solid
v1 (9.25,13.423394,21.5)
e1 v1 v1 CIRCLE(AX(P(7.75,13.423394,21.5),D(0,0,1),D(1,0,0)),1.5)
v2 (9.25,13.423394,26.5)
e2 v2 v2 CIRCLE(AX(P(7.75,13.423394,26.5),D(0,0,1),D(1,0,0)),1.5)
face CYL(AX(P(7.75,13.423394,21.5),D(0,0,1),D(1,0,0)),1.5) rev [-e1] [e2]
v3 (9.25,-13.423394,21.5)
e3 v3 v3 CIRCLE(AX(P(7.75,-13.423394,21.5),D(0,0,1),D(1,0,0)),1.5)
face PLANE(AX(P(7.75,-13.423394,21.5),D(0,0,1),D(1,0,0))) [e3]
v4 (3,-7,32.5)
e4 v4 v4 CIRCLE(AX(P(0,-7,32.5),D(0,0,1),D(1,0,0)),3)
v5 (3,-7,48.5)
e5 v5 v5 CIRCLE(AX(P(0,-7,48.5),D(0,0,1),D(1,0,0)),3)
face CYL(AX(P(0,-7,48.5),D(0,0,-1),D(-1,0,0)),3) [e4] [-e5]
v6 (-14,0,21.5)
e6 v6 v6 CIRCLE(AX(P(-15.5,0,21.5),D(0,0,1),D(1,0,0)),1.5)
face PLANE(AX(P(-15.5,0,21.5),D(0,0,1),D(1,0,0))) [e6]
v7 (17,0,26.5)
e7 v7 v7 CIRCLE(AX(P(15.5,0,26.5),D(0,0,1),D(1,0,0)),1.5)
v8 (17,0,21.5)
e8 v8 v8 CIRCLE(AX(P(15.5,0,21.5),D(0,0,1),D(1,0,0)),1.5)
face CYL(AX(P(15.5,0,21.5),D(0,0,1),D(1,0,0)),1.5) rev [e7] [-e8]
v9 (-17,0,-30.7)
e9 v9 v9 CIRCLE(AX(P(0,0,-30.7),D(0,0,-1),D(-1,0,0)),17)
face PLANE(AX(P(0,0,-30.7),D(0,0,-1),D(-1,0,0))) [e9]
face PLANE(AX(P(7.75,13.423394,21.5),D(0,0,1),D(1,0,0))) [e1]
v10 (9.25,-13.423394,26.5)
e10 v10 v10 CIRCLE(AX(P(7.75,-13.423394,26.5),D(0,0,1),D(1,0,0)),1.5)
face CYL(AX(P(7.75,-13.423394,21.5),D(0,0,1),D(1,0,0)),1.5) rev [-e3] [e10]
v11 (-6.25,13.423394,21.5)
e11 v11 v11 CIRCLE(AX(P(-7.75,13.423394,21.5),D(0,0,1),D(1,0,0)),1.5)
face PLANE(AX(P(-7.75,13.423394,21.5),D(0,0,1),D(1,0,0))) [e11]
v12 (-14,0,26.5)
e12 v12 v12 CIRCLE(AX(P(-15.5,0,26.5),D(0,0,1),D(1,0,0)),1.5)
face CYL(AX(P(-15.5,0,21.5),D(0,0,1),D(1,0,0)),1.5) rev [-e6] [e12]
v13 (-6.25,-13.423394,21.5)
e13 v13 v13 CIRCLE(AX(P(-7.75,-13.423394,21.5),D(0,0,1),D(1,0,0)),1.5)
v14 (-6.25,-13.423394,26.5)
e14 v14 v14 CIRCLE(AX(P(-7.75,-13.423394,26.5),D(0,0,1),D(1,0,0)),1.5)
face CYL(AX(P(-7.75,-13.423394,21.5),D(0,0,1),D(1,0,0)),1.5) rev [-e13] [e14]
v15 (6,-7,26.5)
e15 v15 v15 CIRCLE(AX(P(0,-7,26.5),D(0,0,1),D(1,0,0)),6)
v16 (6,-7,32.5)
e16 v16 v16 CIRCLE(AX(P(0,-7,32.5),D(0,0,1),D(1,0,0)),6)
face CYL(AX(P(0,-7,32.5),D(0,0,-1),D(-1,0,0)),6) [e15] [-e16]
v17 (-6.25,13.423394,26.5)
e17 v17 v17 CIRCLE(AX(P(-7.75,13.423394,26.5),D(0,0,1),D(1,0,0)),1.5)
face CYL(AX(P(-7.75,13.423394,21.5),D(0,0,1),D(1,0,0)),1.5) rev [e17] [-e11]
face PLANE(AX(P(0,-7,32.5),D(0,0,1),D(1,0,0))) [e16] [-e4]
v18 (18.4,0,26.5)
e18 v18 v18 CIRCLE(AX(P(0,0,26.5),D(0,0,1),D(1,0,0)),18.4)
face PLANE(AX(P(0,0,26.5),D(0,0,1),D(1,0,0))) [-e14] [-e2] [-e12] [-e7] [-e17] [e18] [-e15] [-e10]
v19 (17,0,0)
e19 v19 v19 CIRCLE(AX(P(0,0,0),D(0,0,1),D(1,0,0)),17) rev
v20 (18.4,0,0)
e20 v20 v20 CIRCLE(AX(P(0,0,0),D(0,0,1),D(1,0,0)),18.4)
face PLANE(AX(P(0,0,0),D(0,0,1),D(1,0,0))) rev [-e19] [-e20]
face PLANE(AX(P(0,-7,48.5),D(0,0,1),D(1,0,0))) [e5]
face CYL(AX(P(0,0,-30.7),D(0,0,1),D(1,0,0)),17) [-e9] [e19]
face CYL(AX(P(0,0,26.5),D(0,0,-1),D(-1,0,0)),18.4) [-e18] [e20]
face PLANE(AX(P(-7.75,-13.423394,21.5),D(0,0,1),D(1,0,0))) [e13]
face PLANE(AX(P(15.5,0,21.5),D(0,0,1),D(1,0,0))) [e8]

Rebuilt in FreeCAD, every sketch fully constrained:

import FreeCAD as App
import Part
import Sketcher

V = App.Vector

doc = App.newDocument("Part")
body = doc.addObject("PartDesign::Body", "Body")

sketch1 = doc.addObject("Sketcher::SketchObject", "Sketch")
body.addObject(sketch1)
sketch1.AttachmentSupport = (doc.XY_Plane, [""])
sketch1.MapMode = "FlatFace"
sketch1.addGeometry(Part.Circle(V(0, 0, 0), V(0, 0, 1), 18.4), False)
sketch1.addConstraint([
    Sketcher.Constraint("Coincident", 0, 3, -1, 1),
    Sketcher.Constraint("Diameter", 0, 36.8),
])
pad1 = doc.addObject("PartDesign::Pad", "Pad")
body.addObject(pad1)
pad1.Profile = sketch1
pad1.Length = 26.5

sketch2 = doc.addObject("Sketcher::SketchObject", "Sketch001")
body.addObject(sketch2)
sketch2.AttachmentSupport = (doc.XY_Plane, [""])
sketch2.MapMode = "FlatFace"
sketch2.addGeometry(Part.Circle(V(0, 0, 0), V(0, 0, 1), 17), False)
sketch2.addConstraint([
    Sketcher.Constraint("Coincident", 0, 3, -1, 1),
    Sketcher.Constraint("Diameter", 0, 34.0),
])
pad2 = doc.addObject("PartDesign::Pad", "Pad001")
body.addObject(pad2)
pad2.Profile = sketch2
pad2.Length = 30.7
pad2.Reversed = True

sketch3 = doc.addObject("Sketcher::SketchObject", "Sketch002")
body.addObject(sketch3)
sketch3.AttachmentSupport = (doc.XY_Plane, [""])
sketch3.MapMode = "FlatFace"
sketch3.AttachmentOffset = App.Placement(V(0, 0, 26.5), App.Rotation())
sketch3.addGeometry([
    Part.Circle(V(-15.5, 0, 0), V(0, 0, 1), 1.5),
    Part.Circle(V(-7.75, 13.423394, 0), V(0, 0, 1), 1.5),
    Part.Circle(V(7.75, 13.423394, 0), V(0, 0, 1), 1.5),
    Part.Circle(V(15.5, 0, 0), V(0, 0, 1), 1.5),
    Part.Circle(V(7.75, -13.423394, 0), V(0, 0, 1), 1.5),
    Part.Circle(V(-7.75, -13.423394, 0), V(0, 0, 1), 1.5),
], False)
sketch3.addConstraint([
    Sketcher.Constraint("Equal", 0, 1),
    Sketcher.Constraint("Equal", 1, 2),
    Sketcher.Constraint("Equal", 2, 3),
    Sketcher.Constraint("Equal", 3, 4),
    Sketcher.Constraint("Equal", 4, 5),
    Sketcher.Constraint("Symmetric", 0, 3, 3, 3, -1, 1),
    Sketcher.Constraint("Symmetric", 1, 3, 4, 3, -1, 1),
    Sketcher.Constraint("Symmetric", 2, 3, 5, 3, -1, 1),
    Sketcher.Constraint("Symmetric", 1, 3, 2, 3, -2),
    Sketcher.Constraint("PointOnObject", 0, 3, -1),
    Sketcher.Constraint("Diameter", 0, 3.0),
    Sketcher.Constraint("DistanceX", 0, 3, 3, 3, 31.0),
    Sketcher.Constraint("DistanceX", 1, 3, 2, 3, 15.5),
    Sketcher.Constraint("DistanceY", -1, 1, 1, 3, 13.423394),
])
pocket1 = doc.addObject("PartDesign::Pocket", "Pocket")
body.addObject(pocket1)
pocket1.Profile = sketch3
pocket1.Length = 5

sketch4 = doc.addObject("Sketcher::SketchObject", "Sketch003")
body.addObject(sketch4)
sketch4.AttachmentSupport = (doc.XY_Plane, [""])
sketch4.MapMode = "FlatFace"
sketch4.AttachmentOffset = App.Placement(V(0, 0, 26.5), App.Rotation())
sketch4.addGeometry(Part.Circle(V(0, -7, 0), V(0, 0, 1), 6), False)
sketch4.addConstraint([
    Sketcher.Constraint("PointOnObject", 0, 3, -2),
    Sketcher.Constraint("Diameter", 0, 12.0),
    Sketcher.Constraint("DistanceY", 0, 3, -1, 1, 7.0),
])
pad3 = doc.addObject("PartDesign::Pad", "Pad002")
body.addObject(pad3)
pad3.Profile = sketch4
pad3.Length = 6

sketch5 = doc.addObject("Sketcher::SketchObject", "Sketch004")
body.addObject(sketch5)
sketch5.AttachmentSupport = (doc.XY_Plane, [""])
sketch5.MapMode = "FlatFace"
sketch5.AttachmentOffset = App.Placement(V(0, 0, 32.5), App.Rotation())
sketch5.addGeometry(Part.Circle(V(0, -7, 0), V(0, 0, 1), 3), False)
sketch5.addConstraint([
    Sketcher.Constraint("PointOnObject", 0, 3, -2),
    Sketcher.Constraint("Diameter", 0, 6.0),
    Sketcher.Constraint("DistanceY", 0, 3, -1, 1, 7.0),
])
pad4 = doc.addObject("PartDesign::Pad", "Pad003")
body.addObject(pad4)
pad4.Profile = sketch5
pad4.Length = 16

doc.recompute()
